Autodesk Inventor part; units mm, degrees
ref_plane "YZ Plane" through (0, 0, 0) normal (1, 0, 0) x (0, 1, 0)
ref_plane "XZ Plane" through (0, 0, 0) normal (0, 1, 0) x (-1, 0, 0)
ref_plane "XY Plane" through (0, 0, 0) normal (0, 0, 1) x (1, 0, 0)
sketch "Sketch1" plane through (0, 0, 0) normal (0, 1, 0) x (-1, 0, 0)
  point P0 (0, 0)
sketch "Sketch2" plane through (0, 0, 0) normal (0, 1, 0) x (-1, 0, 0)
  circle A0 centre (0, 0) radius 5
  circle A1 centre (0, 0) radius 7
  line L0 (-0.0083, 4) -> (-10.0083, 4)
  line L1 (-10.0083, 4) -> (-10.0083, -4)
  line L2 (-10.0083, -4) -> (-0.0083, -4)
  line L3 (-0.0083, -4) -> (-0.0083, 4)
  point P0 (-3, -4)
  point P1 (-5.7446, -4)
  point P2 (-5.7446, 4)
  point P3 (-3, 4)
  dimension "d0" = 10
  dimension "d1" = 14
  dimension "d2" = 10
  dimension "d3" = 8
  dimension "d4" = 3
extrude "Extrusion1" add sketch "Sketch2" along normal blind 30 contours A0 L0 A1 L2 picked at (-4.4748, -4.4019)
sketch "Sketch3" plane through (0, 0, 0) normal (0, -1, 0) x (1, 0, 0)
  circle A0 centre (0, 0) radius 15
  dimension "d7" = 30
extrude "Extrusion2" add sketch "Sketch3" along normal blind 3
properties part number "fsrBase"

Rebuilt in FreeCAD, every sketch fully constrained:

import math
import FreeCAD as App
import Part
import Sketcher
Q = App.Units.Quantity

doc = App.newDocument("Part")
body = doc.addObject("PartDesign::Body", "Body")

# Sketch on XZ plane
sketch1 = doc.addObject("Sketcher::SketchObject", "Sketch")
body.addObject(sketch1)
sketch1.AttachmentSupport = (doc.XZ_Plane, [""])
sketch1.MapMode = "FlatFace"
sketch1.addGeometry(Part.ArcOfCircle(Part.Circle(App.Vector(0, 0, 0), App.Vector(0, 0, 1), 5), math.radians(53.130102), math.radians(306.869898)), False)
sketch1.addGeometry(Part.LineSegment(App.Vector(3, -4, 0), App.Vector(5.744563, -4, 0)), False)
sketch1.addGeometry(Part.ArcOfCircle(Part.Circle(App.Vector(0, 0, 0), App.Vector(0, 0, 1), 7), math.radians(34.849905), math.radians(325.150095)), False)
sketch1.addGeometry(Part.LineSegment(App.Vector(5.744563, 4, 0), App.Vector(3, 4, 0)), False)
sketch1.addConstraint(Sketcher.Constraint("Coincident", 0, 2, 1, 1))
sketch1.addConstraint(Sketcher.Constraint("Coincident", 1, 2, 2, 2))
sketch1.addConstraint(Sketcher.Constraint("Coincident", 2, 1, 3, 1))
sketch1.addConstraint(Sketcher.Constraint("Coincident", 3, 2, 0, 1))
sketch1.addConstraint(Sketcher.Constraint("Horizontal", 1))
sketch1.addConstraint(Sketcher.Constraint("Horizontal", 3))
sketch1.addConstraint(Sketcher.Constraint("Coincident", 0, 3, -1, 1))
sketch1.addConstraint(Sketcher.Constraint("Coincident", 2, 3, -1, 1))
sketch1.addConstraint(Sketcher.Constraint("Vertical", 1, 2, 2, 1))
sketch1.addConstraint(Sketcher.Constraint("Radius", 0, Q("5 mm")))
sketch1.addConstraint(Sketcher.Constraint("Radius", 2, Q("7 mm")))
sketch1.addConstraint(Sketcher.Constraint("DistanceX", -1, 1, 0, 2, Q("3 mm")))
pad1 = doc.addObject("PartDesign::Pad", "Pad")
body.addObject(pad1)
pad1.Profile = sketch1
pad1.Length = 30
pad1.Reversed = True

# Sketch on XZ plane
sketch2 = doc.addObject("Sketcher::SketchObject", "Sketch001")
body.addObject(sketch2)
sketch2.AttachmentSupport = (doc.XZ_Plane, [""])
sketch2.MapMode = "FlatFace"
sketch2.addGeometry(Part.Circle(App.Vector(0, 0, 0), App.Vector(0, 0, 1), 15), False)
sketch2.addConstraint(Sketcher.Constraint("Coincident", 0, 3, -1, 1))
sketch2.addConstraint(Sketcher.Constraint("Diameter", 0, Q("30 mm")))
pad2 = doc.addObject("PartDesign::Pad", "Pad001")
body.addObject(pad2)
pad2.Profile = sketch2
pad2.Length = 3

doc.recompute()
